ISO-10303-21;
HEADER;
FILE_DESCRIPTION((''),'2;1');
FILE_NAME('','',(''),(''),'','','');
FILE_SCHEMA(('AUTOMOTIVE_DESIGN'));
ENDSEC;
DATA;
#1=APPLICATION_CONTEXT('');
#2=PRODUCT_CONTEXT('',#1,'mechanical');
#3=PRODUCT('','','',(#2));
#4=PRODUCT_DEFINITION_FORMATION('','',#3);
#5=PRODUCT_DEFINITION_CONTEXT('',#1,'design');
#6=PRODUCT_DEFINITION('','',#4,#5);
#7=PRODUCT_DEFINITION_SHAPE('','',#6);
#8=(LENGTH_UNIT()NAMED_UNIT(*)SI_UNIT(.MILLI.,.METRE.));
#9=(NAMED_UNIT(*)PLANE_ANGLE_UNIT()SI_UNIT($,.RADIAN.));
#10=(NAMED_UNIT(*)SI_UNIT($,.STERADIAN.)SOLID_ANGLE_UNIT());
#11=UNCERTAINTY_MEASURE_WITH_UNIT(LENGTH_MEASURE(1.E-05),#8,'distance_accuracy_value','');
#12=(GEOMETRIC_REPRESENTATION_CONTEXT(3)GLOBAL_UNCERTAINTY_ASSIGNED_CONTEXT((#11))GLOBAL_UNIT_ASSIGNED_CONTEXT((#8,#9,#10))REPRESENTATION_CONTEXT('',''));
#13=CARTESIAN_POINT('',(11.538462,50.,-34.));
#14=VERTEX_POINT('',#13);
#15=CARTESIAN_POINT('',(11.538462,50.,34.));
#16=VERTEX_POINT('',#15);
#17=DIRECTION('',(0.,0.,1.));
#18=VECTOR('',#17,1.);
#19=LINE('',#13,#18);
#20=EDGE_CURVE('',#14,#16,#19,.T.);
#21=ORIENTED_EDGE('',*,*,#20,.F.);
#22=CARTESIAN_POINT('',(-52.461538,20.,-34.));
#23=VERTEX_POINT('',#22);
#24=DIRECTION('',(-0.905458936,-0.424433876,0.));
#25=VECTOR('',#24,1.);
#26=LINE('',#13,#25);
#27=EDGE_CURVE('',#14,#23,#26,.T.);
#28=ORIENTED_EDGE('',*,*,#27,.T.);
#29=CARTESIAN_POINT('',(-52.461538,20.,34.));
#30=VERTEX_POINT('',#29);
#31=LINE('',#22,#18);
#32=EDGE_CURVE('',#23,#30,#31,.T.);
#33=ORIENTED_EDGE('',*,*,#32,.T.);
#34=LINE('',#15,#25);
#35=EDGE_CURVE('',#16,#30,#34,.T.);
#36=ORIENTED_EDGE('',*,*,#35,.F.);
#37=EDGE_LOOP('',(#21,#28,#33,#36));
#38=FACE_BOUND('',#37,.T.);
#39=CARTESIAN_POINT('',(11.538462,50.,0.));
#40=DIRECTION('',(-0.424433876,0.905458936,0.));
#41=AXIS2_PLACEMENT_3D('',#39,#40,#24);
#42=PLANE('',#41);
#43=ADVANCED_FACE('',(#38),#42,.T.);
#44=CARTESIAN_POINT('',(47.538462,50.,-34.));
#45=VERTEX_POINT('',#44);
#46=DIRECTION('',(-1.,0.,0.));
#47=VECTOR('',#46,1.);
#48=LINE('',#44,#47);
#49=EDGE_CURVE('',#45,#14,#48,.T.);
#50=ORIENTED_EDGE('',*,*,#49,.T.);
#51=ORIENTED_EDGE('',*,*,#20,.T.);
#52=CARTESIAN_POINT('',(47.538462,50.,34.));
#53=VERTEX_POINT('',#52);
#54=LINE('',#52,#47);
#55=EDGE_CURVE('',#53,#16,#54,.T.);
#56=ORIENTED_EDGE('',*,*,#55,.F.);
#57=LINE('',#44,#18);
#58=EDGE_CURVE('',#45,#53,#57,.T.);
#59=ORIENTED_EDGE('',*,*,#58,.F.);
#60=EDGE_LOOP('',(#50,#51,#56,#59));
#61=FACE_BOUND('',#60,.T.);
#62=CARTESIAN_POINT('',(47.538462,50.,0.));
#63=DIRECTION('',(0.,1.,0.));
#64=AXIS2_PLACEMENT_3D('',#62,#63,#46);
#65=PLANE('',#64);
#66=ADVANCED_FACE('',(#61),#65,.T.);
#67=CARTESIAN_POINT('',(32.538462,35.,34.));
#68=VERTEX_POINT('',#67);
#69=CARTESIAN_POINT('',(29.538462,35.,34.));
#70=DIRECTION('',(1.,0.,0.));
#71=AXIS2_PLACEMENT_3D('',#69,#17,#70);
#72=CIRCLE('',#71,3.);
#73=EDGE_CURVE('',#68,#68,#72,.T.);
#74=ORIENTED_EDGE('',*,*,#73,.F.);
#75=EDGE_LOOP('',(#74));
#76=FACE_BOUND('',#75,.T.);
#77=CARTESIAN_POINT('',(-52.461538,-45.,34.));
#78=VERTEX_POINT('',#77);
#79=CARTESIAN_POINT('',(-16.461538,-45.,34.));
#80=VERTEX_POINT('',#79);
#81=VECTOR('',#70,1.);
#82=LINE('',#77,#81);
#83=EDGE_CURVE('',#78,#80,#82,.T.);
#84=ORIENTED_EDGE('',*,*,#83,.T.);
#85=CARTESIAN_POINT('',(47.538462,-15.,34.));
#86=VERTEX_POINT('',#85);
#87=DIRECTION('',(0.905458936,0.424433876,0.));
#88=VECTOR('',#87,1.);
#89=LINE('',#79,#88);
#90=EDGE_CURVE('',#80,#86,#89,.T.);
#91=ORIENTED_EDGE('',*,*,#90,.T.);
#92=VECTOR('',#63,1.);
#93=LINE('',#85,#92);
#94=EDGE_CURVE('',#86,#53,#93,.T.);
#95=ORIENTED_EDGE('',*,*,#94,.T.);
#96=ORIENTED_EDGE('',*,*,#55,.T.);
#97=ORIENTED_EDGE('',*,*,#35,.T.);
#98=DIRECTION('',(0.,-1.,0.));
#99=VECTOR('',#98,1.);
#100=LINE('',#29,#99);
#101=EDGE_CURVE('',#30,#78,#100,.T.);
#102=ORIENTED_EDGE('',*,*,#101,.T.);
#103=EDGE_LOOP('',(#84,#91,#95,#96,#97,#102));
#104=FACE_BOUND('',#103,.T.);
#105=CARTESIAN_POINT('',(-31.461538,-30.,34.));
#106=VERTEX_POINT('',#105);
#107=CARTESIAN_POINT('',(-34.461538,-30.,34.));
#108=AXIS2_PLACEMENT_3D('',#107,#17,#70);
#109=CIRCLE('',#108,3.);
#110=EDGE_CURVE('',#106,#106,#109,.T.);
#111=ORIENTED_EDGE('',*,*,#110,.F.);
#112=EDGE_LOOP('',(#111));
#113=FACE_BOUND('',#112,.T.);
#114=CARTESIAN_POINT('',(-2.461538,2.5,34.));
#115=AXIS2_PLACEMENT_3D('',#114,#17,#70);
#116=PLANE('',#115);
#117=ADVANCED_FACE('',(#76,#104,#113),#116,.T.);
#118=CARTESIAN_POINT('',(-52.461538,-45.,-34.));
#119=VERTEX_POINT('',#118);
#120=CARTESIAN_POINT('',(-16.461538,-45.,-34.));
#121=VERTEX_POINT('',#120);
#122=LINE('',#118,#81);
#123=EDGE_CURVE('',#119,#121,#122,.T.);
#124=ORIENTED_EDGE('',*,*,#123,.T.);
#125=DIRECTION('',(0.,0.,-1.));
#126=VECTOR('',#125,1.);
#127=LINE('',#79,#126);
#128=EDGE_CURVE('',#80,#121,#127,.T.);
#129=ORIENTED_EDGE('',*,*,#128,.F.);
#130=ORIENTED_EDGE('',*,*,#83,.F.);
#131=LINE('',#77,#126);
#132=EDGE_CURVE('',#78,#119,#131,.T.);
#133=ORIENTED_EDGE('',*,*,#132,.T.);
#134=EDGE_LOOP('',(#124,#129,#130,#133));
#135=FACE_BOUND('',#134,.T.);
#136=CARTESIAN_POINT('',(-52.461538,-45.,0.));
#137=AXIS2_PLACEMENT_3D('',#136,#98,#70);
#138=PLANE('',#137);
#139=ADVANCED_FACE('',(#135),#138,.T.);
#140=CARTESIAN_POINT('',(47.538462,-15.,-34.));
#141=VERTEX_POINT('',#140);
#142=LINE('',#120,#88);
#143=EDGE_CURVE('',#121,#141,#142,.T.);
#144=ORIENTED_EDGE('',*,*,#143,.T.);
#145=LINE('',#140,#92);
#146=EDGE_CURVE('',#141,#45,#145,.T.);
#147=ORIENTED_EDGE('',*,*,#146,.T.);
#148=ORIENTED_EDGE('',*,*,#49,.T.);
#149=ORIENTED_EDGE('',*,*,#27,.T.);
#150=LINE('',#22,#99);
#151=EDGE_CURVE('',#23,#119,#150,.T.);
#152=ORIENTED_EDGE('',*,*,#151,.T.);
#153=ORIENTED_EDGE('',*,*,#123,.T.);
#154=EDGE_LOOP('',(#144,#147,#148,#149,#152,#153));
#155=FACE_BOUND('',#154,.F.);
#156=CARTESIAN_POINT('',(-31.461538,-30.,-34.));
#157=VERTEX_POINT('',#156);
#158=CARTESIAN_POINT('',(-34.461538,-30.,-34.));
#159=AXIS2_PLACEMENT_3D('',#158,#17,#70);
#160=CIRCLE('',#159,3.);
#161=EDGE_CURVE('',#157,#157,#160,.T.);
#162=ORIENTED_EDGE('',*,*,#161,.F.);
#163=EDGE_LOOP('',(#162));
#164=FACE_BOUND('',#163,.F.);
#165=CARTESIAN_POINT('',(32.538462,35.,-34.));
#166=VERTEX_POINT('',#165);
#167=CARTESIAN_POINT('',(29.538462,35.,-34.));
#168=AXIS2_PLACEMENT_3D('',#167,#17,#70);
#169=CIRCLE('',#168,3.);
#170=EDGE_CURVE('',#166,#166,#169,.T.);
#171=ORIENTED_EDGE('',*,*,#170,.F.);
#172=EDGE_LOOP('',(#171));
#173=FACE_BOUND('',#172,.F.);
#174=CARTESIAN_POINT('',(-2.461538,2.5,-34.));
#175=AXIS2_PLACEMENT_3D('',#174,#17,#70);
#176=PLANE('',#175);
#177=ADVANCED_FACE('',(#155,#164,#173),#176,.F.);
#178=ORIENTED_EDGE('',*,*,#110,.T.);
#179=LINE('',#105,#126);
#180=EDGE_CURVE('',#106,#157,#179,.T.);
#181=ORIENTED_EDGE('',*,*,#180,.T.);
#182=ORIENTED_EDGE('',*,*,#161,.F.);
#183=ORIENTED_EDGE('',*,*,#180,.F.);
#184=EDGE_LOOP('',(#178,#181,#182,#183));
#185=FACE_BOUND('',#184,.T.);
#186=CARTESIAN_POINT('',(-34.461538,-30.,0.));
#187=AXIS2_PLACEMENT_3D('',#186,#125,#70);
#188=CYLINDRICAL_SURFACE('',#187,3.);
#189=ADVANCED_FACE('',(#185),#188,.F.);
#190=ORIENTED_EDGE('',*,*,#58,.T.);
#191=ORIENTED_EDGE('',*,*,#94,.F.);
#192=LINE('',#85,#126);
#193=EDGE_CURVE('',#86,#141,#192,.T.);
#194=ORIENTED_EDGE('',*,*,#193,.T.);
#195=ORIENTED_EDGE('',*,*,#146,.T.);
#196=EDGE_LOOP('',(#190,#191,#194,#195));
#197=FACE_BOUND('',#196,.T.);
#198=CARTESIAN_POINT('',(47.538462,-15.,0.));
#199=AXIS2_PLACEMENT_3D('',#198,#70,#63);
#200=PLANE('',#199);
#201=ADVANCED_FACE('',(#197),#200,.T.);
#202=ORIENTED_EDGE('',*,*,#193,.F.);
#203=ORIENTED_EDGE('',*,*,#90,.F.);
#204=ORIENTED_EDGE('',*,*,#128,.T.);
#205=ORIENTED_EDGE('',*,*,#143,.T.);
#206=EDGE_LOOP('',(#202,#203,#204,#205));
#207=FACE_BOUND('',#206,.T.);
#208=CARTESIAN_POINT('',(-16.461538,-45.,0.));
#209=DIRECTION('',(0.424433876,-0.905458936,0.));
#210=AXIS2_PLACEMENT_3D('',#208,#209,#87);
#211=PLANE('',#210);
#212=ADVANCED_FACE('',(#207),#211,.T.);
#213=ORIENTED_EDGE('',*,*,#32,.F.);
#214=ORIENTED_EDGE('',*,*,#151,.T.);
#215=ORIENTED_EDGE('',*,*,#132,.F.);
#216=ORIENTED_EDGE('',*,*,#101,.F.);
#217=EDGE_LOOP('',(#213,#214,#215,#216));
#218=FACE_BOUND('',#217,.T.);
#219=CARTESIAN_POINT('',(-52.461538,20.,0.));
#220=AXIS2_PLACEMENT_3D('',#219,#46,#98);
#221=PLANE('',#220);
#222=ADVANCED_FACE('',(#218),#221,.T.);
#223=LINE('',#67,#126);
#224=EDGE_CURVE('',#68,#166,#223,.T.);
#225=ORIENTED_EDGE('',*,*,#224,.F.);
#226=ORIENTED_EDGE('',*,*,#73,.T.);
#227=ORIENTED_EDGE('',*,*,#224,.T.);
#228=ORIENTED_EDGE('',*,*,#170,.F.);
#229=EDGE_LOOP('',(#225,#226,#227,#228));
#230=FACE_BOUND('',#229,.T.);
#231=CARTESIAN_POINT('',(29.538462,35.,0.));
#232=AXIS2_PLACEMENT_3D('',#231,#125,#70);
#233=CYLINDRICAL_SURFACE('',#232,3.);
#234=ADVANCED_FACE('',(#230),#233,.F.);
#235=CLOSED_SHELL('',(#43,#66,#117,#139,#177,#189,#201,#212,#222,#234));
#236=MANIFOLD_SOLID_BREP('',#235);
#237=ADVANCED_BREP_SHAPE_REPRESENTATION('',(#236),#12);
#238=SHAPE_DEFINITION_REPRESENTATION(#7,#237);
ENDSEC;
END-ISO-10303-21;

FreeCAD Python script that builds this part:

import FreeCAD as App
import Part
import Sketcher

V = App.Vector
Q = App.Units.Quantity


def add_polygon(sketch, points):
    """Adds a closed chain of lines whose ends are joined by coincident constraints."""
    first, n = sketch.GeometryCount, len(points)
    for a, b in zip(points, points[1:] + points[:1]):
        sketch.addGeometry(Part.LineSegment(App.Vector(*a, 0), App.Vector(*b, 0)), False)
    for i in range(n):
        sketch.addConstraint(Sketcher.Constraint("Coincident", first + i, 2, first + (i + 1) % n, 1))

doc = App.newDocument("Part")
body = doc.addObject("PartDesign::Body", "Body")

# Sketch on XY plane
sketch1 = body.newObject("Sketcher::SketchObject", "Sketch")
sketch1.AttachmentSupport = (doc.getObject("XY_Plane"), [""])
sketch1.MapMode = "FlatFace"
add_polygon(sketch1, [(47.5, -15), (47.5, 50), (11.5, 50), (-52.5, 20), (-52.5, -45), (-16.5, -45)])  # lines 0-5
sketch1.addGeometry(Part.Circle(V(-34.5, -30, 0), V(0, 0, 1), 3), False)  # 6
sketch1.addGeometry(Part.Circle(V(29.5, 35, 0), V(0, 0, 1), 3), False)  # 7
sketch1.addConstraint([
    Sketcher.Constraint("Vertical", 0),
    Sketcher.Constraint("Horizontal", 1),
    Sketcher.Constraint("Vertical", 3),
    Sketcher.Constraint("Horizontal", 4),
    Sketcher.Constraint("Equal", 6, 7),
    Sketcher.Constraint("Parallel", 2, 5),
    Sketcher.Constraint("Equal", 1, 4),
    Sketcher.Constraint("Diameter", 6, Q("6 mm")),
    Sketcher.Constraint("DistanceX", 1, 2, 1, 1, Q("36 mm")),
    Sketcher.Constraint("DistanceY", 0, 1, 0, 2, Q("65 mm")),
    Sketcher.Constraint("DistanceY", 6, 3, -1, 1, Q("30 mm")),
    Sketcher.Constraint("DistanceY", -1, 1, 7, 3, Q("35 mm")),
    Sketcher.Constraint("DistanceY", -1, 1, 0, 2, Q("50 mm")),
    Sketcher.Constraint("DistanceY", -1, 1, 2, 2, Q("20 mm")),
    Sketcher.Constraint("DistanceX", 6, 3, 7, 3, Q("64 mm")),
    Sketcher.Constraint("DistanceX", 7, 3, 0, 2, Q("18 mm")),
    Sketcher.Constraint("DistanceX", 2, 2, 6, 3, Q("18 mm")),
    Sketcher.Constraint("DistanceX", -1, 1, 7, 3, Q("29.538462 mm")),
])
pad1 = body.newObject("PartDesign::Pad", "Pad")
pad1.Profile = sketch1
pad1.Length = 68
pad1.Midplane = True

doc.recompute()
